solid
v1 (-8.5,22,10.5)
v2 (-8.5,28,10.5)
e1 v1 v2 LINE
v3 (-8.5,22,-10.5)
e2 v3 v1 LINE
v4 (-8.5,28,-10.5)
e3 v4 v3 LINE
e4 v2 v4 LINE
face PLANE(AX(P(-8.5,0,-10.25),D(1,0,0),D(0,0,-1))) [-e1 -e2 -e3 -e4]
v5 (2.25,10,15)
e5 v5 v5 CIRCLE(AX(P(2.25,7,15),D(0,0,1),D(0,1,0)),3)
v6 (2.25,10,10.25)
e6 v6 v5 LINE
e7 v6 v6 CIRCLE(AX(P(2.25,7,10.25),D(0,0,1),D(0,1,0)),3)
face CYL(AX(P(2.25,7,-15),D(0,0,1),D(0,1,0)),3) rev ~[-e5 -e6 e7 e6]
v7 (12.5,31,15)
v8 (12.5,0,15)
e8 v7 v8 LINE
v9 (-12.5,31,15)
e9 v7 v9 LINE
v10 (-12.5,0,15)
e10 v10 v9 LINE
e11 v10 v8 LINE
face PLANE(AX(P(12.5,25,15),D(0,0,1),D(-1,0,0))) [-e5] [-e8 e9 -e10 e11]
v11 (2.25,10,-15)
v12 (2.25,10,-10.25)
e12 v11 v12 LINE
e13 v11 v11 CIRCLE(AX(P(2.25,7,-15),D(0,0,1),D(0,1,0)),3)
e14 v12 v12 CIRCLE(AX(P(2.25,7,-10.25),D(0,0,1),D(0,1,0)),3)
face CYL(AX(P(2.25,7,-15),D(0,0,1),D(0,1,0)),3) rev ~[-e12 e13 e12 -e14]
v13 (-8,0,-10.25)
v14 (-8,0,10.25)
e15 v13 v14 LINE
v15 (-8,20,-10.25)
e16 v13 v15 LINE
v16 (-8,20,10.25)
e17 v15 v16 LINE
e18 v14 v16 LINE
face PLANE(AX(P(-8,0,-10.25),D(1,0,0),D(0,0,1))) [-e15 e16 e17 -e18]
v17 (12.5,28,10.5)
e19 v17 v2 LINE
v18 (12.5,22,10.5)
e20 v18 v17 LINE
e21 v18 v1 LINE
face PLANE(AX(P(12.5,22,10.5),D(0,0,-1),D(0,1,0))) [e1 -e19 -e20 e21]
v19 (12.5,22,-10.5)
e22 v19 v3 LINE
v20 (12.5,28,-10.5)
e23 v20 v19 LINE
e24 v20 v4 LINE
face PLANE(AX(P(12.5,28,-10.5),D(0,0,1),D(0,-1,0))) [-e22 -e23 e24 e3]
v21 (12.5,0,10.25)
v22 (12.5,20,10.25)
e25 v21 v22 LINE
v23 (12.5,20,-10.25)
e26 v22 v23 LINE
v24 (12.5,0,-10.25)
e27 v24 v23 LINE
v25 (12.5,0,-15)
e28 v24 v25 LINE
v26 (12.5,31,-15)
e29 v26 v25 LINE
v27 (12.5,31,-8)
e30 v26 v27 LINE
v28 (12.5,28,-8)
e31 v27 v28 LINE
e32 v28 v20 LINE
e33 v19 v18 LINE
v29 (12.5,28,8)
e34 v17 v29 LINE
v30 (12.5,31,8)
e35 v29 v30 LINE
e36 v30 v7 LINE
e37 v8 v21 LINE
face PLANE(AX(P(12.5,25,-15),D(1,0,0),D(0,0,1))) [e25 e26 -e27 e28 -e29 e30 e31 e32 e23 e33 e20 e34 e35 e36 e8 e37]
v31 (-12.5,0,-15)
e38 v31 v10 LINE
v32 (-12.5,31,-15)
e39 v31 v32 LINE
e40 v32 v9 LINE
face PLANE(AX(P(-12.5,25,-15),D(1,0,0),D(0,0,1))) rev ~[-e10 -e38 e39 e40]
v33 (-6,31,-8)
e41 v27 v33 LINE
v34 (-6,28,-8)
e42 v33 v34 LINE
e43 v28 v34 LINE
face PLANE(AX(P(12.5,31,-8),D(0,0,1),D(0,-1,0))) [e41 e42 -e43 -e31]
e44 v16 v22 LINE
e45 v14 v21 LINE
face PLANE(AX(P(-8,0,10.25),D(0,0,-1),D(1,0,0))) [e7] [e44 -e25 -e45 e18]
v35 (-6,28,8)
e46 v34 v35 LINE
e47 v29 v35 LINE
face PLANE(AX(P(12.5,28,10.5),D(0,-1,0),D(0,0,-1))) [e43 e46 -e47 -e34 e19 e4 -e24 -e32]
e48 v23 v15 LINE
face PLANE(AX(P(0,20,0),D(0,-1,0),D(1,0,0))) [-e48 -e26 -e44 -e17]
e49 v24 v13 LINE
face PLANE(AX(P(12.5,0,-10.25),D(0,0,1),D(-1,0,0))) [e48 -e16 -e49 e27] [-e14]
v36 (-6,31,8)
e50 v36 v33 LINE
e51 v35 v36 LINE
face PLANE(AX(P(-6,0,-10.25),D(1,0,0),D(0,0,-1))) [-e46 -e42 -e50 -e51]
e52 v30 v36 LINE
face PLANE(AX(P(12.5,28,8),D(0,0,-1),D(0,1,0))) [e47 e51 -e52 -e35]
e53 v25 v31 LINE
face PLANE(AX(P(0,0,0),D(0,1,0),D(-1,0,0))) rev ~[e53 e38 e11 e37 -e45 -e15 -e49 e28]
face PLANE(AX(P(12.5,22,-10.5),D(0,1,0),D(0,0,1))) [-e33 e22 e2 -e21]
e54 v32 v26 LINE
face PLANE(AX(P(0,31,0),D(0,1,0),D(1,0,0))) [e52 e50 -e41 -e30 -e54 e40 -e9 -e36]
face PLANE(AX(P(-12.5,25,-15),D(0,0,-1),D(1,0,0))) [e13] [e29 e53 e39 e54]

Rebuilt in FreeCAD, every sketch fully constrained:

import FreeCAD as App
import Part
import Sketcher

V = App.Vector
Q = App.Units.Quantity

doc = App.newDocument("Part")
body = doc.addObject("PartDesign::Body", "Body")

# Sketch on XZ plane
sketch1 = body.newObject("Sketcher::SketchObject", "Sketch")
sketch1.AttachmentSupport = (doc.getObject("XZ_Plane"), [""])
sketch1.MapMode = "FlatFace"
sketch1.addGeometry([
    Part.LineSegment(V(12, 15, 0), V(12, -15, 0)),
    Part.LineSegment(V(12, -15, 0), V(-12, -15, 0)),
    Part.LineSegment(V(-12, -15, 0), V(-12, 15, 0)),
    Part.LineSegment(V(-12, 15, 0), V(12, 15, 0)),
], False)
sketch1.addConstraint([
    Sketcher.Constraint("Coincident", 0, 2, 1, 1),
    Sketcher.Constraint("Coincident", 1, 2, 2, 1),
    Sketcher.Constraint("Coincident", 2, 2, 3, 1),
    Sketcher.Constraint("Coincident", 3, 2, 0, 1),
    Sketcher.Constraint("Vertical", 0),
    Sketcher.Constraint("Horizontal", 1),
    Sketcher.Constraint("Vertical", 2),
    Sketcher.Constraint("Horizontal", 3),
    Sketcher.Constraint("Symmetric", 0, 2, 2, 2, -1, 1),
    Sketcher.Constraint("DistanceX", 1, 2, 1, 1, Q("25 mm")),
    Sketcher.Constraint("DistanceY", 0, 2, 0, 1, Q("30 mm")),
])
pad1 = body.newObject("PartDesign::Pad", "Pad")
pad1.Profile = sketch1
pad1.Length = 25
pad1.Reversed = True

# Sketch on XZ plane
sketch2 = body.newObject("Sketcher::SketchObject", "Sketch001")
sketch2.AttachmentSupport = (doc.getObject("XZ_Plane"), [""])
sketch2.MapMode = "FlatFace"
sketch2.addGeometry([
    Part.LineSegment(V(12, -10, 0), V(12, 10, 0)),
    Part.LineSegment(V(12, 10, 0), V(-8, 10, 0)),
    Part.LineSegment(V(-8, 10, 0), V(-8, -10, 0)),
    Part.LineSegment(V(-8, -10, 0), V(12, -10, 0)),
], False)
sketch2.addConstraint([
    Sketcher.Constraint("Coincident", 0, 2, 1, 1),
    Sketcher.Constraint("Coincident", 1, 2, 2, 1),
    Sketcher.Constraint("Coincident", 2, 2, 3, 1),
    Sketcher.Constraint("Coincident", 3, 2, 0, 1),
    Sketcher.Constraint("Vertical", 0),
    Sketcher.Constraint("Horizontal", 1),
    Sketcher.Constraint("Vertical", 2),
    Sketcher.Constraint("Horizontal", 3),
    Sketcher.Constraint("Equal", 3, 0),
    Sketcher.Constraint("DistanceX", 1, 2, 1, 1, Q("20.5 mm")),
    Sketcher.Constraint("DistanceY", -1, 1, 0, 2, Q("10.25 mm")),
    Sketcher.Constraint("DistanceX", 1, 2, -1, 1, Q("8 mm")),
])
pocket1 = body.newObject("PartDesign::Pocket", "Pocket")
pocket1.Profile = sketch2
pocket1.Length = 20

# Sketch on XY plane
sketch3 = body.newObject("Sketcher::SketchObject", "Sketch002")
sketch3.AttachmentSupport = (doc.getObject("XY_Plane"), [""])
sketch3.MapMode = "FlatFace"
sketch3.AttachmentOffset = App.Placement(V(0, 0, -15), App.Rotation())
sketch3.addGeometry(Part.Circle(V(2.2, 7, 0), V(0, 0, 1), 3), False)
sketch3.addConstraint([
    Sketcher.Constraint("Diameter", 0, Q("6 mm")),
    Sketcher.Constraint("DistanceY", -1, 1, 0, 3, Q("7 mm")),
    Sketcher.Constraint("DistanceX", -1, 1, 0, 3, Q("2.25 mm")),
])
doc.recompute()
hole = body.newObject("PartDesign::Hole", "Hole")
hole.Profile = sketch3
hole.ThreadType = "None"
hole.Diameter = 6
hole.DepthType = "ThroughAll"
hole.Reversed = True

# Sketch on XZ plane
sketch4 = body.newObject("Sketcher::SketchObject", "Sketch003")
sketch4.AttachmentSupport = (doc.getObject("XZ_Plane"), [""])
sketch4.MapMode = "FlatFace"
sketch4.AttachmentOffset = App.Placement(V(0, 0, -25), App.Rotation())
sketch4.addGeometry([
    Part.LineSegment(V(12, -15, 0), V(-12, -15, 0)),
    Part.LineSegment(V(-12, -15, 0), V(-12, 15, 0)),
    Part.LineSegment(V(-12, 15, 0), V(12, 15, 0)),
    Part.LineSegment(V(12, 15, 0), V(12, -15, 0)),
], False)
sketch4.addConstraint([
    Sketcher.Constraint("Coincident", 0, 2, 1, 1),
    Sketcher.Constraint("Coincident", 1, 2, 2, 1),
    Sketcher.Constraint("Coincident", 2, 2, 3, 1),
    Sketcher.Constraint("Coincident", 3, 2, 0, 1),
    Sketcher.Constraint("Horizontal", 0),
    Sketcher.Constraint("Vertical", 1),
    Sketcher.Constraint("Horizontal", 2),
    Sketcher.Constraint("Vertical", 3),
    Sketcher.Constraint("Symmetric", 0, 2, 2, 2, -1, 1),
    Sketcher.Constraint("DistanceX", 0, 2, 0, 1, Q("25 mm")),
    Sketcher.Constraint("DistanceY", 1, 1, 1, 2, Q("30 mm")),
])
pad2 = body.newObject("PartDesign::Pad", "Pad001")
pad2.Profile = sketch4
pad2.Length = 6
pad2.Reversed = True

# Sketch on YZ plane
sketch5 = body.newObject("Sketcher::SketchObject", "Sketch004")
sketch5.AttachmentSupport = (doc.getObject("YZ_Plane"), [""])
sketch5.MapMode = "FlatFace"
sketch5.AttachmentOffset = App.Placement(V(0, 0, 12.5), App.Rotation())
sketch5.addGeometry([
    Part.LineSegment(V(28, -10, 0), V(28, 10, 0)),
    Part.LineSegment(V(28, 10, 0), V(22, 10, 0)),
    Part.LineSegment(V(22, 10, 0), V(22, -10, 0)),
    Part.LineSegment(V(22, -10, 0), V(28, -10, 0)),
], False)
sketch5.addConstraint([
    Sketcher.Constraint("Coincident", 0, 2, 1, 1),
    Sketcher.Constraint("Coincident", 1, 2, 2, 1),
    Sketcher.Constraint("Coincident", 2, 2, 3, 1),
    Sketcher.Constraint("Coincident", 3, 2, 0, 1),
    Sketcher.Constraint("Vertical", 0),
    Sketcher.Constraint("Horizontal", 1),
    Sketcher.Constraint("Vertical", 2),
    Sketcher.Constraint("Horizontal", 3),
    Sketcher.Constraint("DistanceX", 1, 2, 1, 1, Q("6 mm")),
    Sketcher.Constraint("DistanceY", 0, 1, 0, 2, Q("21 mm")),
    Sketcher.Constraint("DistanceY", -1, 1, 0, 2, Q("10.5 mm")),
    Sketcher.Constraint("DistanceX", -1, 1, 0, 2, Q("28 mm")),
])
pocket2 = body.newObject("PartDesign::Pocket", "Pocket001")
pocket2.Profile = sketch5
pocket2.Length = 21

# Sketch on YZ plane
sketch6 = body.newObject("Sketcher::SketchObject", "Sketch005")
sketch6.AttachmentSupport = (doc.getObject("YZ_Plane"), [""])
sketch6.MapMode = "FlatFace"
sketch6.AttachmentOffset = App.Placement(V(0, 0, 12.5), App.Rotation())
sketch6.addGeometry([
    Part.LineSegment(V(31, -8, 0), V(31, 8, 0)),
    Part.LineSegment(V(31, 8, 0), V(28, 8, 0)),
    Part.LineSegment(V(28, 8, 0), V(28, -8, 0)),
    Part.LineSegment(V(28, -8, 0), V(31, -8, 0)),
], False)
sketch6.addConstraint([
    Sketcher.Constraint("Coincident", 0, 2, 1, 1),
    Sketcher.Constraint("Coincident", 1, 2, 2, 1),
    Sketcher.Constraint("Coincident", 2, 2, 3, 1),
    Sketcher.Constraint("Coincident", 3, 2, 0, 1),
    Sketcher.Constraint("Vertical", 0),
    Sketcher.Constraint("Horizontal", 1),
    Sketcher.Constraint("Vertical", 2),
    Sketcher.Constraint("Horizontal", 3),
    Sketcher.Constraint("DistanceX", 1, 2, 1, 1, Q("3 mm")),
    Sketcher.Constraint("DistanceY", 0, 1, 0, 2, Q("16 mm")),
    Sketcher.Constraint("DistanceY", -1, 1, 0, 2, Q("8 mm")),
    Sketcher.Constraint("DistanceX", -1, 1, 0, 2, Q("31 mm")),
])
pocket3 = body.newObject("PartDesign::Pocket", "Pocket002")
pocket3.Profile = sketch6
pocket3.Length = 18.5

doc.recompute()
